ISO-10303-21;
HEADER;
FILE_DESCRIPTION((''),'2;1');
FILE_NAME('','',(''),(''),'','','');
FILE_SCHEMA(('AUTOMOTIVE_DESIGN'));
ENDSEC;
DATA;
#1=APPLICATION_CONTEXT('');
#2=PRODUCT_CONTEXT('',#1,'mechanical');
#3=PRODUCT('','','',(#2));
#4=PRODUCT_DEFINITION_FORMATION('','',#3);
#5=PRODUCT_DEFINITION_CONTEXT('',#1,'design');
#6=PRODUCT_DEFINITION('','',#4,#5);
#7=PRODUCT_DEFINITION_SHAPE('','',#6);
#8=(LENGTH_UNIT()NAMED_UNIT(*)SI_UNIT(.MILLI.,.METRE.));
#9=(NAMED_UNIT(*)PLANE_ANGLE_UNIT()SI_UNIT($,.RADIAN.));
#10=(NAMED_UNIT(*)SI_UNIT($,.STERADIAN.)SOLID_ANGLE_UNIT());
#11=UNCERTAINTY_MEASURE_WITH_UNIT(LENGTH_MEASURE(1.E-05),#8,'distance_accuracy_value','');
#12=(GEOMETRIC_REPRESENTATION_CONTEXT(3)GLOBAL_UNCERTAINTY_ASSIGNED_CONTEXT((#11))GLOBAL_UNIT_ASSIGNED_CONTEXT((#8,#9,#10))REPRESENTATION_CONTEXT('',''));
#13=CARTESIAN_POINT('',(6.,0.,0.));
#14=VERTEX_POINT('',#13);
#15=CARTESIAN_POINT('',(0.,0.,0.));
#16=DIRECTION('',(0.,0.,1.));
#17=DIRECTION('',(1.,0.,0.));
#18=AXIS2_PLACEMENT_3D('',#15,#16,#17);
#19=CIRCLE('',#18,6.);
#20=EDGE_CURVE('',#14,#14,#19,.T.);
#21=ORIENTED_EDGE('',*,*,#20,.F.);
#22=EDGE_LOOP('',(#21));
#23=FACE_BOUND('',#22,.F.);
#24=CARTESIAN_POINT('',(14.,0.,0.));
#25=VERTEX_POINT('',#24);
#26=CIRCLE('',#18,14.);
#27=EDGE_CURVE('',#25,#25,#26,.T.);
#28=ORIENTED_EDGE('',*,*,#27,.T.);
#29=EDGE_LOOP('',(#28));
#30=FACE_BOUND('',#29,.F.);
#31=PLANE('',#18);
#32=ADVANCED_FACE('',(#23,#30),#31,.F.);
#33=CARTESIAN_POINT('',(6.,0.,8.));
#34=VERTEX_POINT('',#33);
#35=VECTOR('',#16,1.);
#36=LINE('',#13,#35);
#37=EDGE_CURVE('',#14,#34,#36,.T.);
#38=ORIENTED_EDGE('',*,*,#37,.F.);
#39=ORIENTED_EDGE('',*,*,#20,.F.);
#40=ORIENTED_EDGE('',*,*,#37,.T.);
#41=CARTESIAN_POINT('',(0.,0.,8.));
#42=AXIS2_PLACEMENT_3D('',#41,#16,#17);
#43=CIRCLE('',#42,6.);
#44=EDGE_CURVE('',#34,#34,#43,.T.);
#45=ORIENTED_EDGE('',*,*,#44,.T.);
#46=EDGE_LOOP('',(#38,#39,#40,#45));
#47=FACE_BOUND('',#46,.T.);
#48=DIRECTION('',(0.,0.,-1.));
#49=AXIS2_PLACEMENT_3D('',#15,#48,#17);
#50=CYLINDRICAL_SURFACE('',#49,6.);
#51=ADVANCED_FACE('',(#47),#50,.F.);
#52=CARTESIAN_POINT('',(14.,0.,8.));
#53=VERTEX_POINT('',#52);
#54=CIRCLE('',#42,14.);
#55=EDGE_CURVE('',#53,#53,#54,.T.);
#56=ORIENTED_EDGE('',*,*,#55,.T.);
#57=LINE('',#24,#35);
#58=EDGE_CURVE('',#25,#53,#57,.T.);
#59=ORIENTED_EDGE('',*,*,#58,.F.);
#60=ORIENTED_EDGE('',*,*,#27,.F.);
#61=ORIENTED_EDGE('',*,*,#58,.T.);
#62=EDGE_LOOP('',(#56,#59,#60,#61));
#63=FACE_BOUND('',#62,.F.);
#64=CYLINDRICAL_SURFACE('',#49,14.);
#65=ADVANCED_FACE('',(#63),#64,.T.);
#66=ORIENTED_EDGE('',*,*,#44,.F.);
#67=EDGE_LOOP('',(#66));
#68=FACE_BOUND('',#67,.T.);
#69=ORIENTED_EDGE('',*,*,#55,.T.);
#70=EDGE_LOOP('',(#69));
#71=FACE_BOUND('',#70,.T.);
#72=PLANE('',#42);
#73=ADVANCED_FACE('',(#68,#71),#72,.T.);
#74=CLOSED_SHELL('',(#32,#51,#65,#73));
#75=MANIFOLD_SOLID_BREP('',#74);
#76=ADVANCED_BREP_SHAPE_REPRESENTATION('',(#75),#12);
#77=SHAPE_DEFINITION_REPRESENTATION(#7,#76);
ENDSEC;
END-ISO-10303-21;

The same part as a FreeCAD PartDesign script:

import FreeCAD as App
import Part
import Sketcher
from FreeCAD import Vector
Q = App.Units.Quantity

doc = App.newDocument("Part")
body = doc.addObject("PartDesign::Body", "Body")

# Sketch on XY plane
sketch1 = body.newObject("Sketcher::SketchObject", "Sketch")
sketch1.AttachmentSupport = (doc.getObject("XY_Plane"), [""])
sketch1.MapMode = "FlatFace"
sketch1.addGeometry([
    Part.Circle(Vector(0, 0, 0), Vector(0, 0, 1), 14),
    Part.Circle(Vector(0, 0, 0), Vector(0, 0, 1), 6),
], False)
sketch1.addConstraint([
    Sketcher.Constraint("Coincident", 0, 3, -1, 1),
    Sketcher.Constraint("Coincident", 1, 3, -1, 1),
    Sketcher.Constraint("Diameter", 0, Q("28 mm")),
    Sketcher.Constraint("Diameter", 1, Q("12 mm")),
])
pad1 = body.newObject("PartDesign::Pad", "Pad")
pad1.Profile = sketch1
pad1.Length = 8

doc.recompute()
